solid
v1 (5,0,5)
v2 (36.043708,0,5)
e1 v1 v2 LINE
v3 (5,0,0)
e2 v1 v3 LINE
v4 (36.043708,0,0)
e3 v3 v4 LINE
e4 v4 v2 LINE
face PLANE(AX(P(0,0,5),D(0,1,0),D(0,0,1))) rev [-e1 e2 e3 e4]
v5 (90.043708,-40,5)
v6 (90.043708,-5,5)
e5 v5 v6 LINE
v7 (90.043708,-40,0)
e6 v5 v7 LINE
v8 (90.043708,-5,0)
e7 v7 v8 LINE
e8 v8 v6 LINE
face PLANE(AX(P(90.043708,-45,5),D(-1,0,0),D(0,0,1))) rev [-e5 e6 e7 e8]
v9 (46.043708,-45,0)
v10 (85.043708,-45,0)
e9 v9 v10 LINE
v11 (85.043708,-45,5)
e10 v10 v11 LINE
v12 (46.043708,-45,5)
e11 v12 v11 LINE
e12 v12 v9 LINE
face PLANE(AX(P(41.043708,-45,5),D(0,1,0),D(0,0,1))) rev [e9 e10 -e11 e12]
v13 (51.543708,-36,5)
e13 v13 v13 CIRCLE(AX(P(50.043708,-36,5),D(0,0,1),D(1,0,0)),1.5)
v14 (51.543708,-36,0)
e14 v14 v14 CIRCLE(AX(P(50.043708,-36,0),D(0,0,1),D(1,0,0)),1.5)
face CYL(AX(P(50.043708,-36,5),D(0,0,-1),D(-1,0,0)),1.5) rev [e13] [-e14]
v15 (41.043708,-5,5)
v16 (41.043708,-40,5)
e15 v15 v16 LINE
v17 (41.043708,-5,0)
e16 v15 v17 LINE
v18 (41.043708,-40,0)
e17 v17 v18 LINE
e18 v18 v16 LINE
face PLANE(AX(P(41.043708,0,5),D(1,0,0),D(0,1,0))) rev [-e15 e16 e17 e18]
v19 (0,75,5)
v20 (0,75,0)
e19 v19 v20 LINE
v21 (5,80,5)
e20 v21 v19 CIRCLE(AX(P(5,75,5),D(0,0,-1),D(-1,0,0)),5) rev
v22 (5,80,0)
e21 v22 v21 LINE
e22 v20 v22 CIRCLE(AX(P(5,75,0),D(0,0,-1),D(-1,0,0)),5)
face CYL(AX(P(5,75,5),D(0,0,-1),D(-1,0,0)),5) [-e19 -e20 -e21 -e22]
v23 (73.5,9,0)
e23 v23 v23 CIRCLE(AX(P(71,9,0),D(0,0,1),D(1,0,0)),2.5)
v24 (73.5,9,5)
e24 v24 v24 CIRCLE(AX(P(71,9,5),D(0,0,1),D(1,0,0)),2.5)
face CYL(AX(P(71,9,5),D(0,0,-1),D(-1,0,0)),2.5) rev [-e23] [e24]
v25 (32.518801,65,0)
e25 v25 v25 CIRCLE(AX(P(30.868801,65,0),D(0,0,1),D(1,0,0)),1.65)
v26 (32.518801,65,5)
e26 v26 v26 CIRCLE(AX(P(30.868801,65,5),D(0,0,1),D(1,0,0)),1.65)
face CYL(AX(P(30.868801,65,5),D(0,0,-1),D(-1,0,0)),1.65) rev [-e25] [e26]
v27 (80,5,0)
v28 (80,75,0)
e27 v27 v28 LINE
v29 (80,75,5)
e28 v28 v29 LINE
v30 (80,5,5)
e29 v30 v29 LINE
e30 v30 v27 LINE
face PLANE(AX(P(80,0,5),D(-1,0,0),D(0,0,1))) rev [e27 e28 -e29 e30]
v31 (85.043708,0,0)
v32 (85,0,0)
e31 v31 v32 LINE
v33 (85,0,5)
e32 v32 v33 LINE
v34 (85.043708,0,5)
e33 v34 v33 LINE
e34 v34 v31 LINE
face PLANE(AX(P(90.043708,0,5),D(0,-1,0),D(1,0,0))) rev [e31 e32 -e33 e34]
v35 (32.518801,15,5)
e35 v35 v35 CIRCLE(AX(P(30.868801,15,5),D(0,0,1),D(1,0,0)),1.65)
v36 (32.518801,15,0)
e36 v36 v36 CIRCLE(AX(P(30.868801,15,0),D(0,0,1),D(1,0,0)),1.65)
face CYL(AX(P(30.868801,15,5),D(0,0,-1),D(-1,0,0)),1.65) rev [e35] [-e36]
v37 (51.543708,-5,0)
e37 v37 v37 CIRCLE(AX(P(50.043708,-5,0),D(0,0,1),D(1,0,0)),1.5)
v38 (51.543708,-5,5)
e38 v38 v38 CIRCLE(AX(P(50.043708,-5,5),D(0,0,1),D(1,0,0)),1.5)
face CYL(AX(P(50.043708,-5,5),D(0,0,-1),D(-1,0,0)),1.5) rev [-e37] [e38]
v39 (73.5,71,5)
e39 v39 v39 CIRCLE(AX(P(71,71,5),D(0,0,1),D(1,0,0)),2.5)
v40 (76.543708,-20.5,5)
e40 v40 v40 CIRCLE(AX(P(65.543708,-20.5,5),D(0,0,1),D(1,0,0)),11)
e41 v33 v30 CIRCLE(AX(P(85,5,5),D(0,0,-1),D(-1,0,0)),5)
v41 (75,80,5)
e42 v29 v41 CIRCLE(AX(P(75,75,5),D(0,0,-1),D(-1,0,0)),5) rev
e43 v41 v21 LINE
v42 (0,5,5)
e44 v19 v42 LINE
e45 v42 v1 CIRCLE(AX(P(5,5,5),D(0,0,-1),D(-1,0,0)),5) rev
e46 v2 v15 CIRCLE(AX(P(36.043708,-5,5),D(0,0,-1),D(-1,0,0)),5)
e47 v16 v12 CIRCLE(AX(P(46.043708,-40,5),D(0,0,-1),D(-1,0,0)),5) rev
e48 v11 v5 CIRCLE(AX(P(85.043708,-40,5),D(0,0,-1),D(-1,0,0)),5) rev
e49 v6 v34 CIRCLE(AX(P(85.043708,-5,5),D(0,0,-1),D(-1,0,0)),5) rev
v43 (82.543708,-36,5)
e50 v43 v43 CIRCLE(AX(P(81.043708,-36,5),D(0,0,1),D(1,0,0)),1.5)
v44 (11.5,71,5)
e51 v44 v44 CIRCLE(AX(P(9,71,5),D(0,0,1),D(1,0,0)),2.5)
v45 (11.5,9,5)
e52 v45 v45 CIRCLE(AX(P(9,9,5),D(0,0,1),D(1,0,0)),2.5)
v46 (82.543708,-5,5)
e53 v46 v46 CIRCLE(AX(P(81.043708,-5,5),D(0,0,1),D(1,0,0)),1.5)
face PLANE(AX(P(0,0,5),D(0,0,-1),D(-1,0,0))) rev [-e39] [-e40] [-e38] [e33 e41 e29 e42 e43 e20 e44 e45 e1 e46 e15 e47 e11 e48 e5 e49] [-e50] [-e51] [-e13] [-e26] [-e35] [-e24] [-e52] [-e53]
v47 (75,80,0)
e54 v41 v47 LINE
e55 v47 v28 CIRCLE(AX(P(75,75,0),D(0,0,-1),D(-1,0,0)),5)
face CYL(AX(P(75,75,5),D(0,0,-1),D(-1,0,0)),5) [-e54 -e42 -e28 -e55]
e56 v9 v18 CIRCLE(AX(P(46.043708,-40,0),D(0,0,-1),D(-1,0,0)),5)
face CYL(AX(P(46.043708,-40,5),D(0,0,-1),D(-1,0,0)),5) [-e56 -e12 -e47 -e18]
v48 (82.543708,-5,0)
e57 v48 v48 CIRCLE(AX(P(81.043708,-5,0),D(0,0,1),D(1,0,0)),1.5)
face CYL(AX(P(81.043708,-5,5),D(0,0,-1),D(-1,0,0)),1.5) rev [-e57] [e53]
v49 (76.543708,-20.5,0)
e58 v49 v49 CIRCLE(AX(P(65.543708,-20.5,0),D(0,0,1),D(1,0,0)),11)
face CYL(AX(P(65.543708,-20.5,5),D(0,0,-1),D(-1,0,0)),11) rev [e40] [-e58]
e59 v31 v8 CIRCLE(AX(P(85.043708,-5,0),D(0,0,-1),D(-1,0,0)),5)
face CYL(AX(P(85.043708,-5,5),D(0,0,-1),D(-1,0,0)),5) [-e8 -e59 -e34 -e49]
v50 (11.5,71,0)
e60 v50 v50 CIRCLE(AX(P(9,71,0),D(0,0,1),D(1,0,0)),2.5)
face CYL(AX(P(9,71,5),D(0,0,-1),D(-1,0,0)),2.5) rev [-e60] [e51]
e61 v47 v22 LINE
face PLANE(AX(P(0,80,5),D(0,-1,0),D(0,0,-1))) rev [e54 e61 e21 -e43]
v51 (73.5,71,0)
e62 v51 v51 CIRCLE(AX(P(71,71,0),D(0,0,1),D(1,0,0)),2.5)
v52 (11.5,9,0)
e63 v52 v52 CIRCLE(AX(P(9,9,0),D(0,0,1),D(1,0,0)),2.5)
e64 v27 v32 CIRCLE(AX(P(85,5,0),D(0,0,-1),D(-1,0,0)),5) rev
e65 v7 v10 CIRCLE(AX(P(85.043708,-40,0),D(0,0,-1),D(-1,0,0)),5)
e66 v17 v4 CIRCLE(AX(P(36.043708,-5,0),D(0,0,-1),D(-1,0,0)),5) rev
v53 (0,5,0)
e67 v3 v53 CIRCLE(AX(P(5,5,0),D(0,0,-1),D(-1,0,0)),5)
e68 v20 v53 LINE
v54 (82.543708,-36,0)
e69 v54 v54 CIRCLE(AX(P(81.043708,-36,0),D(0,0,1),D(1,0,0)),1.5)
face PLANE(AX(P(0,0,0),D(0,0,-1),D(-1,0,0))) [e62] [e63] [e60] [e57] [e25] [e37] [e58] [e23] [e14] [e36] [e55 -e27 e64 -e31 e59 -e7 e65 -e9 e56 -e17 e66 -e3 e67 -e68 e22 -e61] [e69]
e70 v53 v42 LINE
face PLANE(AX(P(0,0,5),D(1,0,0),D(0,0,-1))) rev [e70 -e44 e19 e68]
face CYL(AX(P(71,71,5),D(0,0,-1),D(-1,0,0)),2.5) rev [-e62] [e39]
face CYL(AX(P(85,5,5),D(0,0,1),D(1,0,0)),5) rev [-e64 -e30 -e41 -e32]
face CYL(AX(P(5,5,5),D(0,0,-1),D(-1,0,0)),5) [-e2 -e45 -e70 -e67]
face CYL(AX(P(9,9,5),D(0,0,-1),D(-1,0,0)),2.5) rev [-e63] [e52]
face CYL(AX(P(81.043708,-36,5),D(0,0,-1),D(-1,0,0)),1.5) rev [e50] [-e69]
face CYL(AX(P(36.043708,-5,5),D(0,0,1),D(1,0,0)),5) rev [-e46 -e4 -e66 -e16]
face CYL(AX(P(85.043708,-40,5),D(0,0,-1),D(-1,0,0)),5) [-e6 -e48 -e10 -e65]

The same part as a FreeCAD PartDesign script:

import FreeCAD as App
import Part
import Sketcher
from FreeCAD import Vector


def edges_at(feature, points):
    """Names of the edges that pass closest to the given points."""
    edges = feature.Shape.Edges
    near = lambda p: min(range(len(edges)), key=lambda i: edges[i].distToShape(Part.Vertex(*p))[0])
    return sorted({f"Edge{near(p) + 1}" for p in points})


def add_polygon(sketch, points):
    """Adds a closed chain of lines whose ends are joined by coincident constraints."""
    first, n = sketch.GeometryCount, len(points)
    for a, b in zip(points, points[1:] + points[:1]):
        sketch.addGeometry(Part.LineSegment(App.Vector(*a, 0), App.Vector(*b, 0)), False)
    for i in range(n):
        sketch.addConstraint(Sketcher.Constraint("Coincident", first + i, 2, first + (i + 1) % n, 1))

doc = App.newDocument("Part")
body = doc.addObject("PartDesign::Body", "Body")

# Sketch on XY plane
sketch1 = body.newObject("Sketcher::SketchObject", "Sketch")
sketch1.AttachmentSupport = (doc.getObject("XY_Plane"), [""])
sketch1.MapMode = "FlatFace"
add_polygon(sketch1, [(0, 80), (0, 0), (41, 0), (41, -45), (90, -45), (90, 0), (80, 0), (80, 80)])  # lines 0-7
sketch1.addGeometry(Part.Circle(Vector(81, -36, 0), Vector(0, 0, 1), 1.5), False)  # 8
sketch1.addGeometry(Part.Circle(Vector(65.5, -20.5, 0), Vector(0, 0, 1), 11), False)  # 9
sketch1.addGeometry(Part.Circle(Vector(50, -36, 0), Vector(0, 0, 1), 1.5), False)  # 10
sketch1.addGeometry(Part.Circle(Vector(81, -5, 0), Vector(0, 0, 1), 1.5), False)  # 11
sketch1.addGeometry(Part.Circle(Vector(71, 9, 0), Vector(0, 0, 1), 2.5), False)  # 12
sketch1.addGeometry(Part.Circle(Vector(50, -5, 0), Vector(0, 0, 1), 1.5), False)  # 13
sketch1.addGeometry(Part.Circle(Vector(30.9, 15, 0), Vector(0, 0, 1), 1.6), False)  # 14
sketch1.addGeometry(Part.Circle(Vector(9, 9, 0), Vector(0, 0, 1), 2.5), False)  # 15
sketch1.addGeometry(Part.Circle(Vector(71, 71, 0), Vector(0, 0, 1), 2.5), False)  # 16
sketch1.addGeometry(Part.Circle(Vector(30.9, 65, 0), Vector(0, 0, 1), 1.6), False)  # 17
sketch1.addGeometry(Part.Circle(Vector(9, 71, 0), Vector(0, 0, 1), 2.5), False)  # 18
sketch1.addConstraint([
    Sketcher.Constraint("Vertical", 0),
    Sketcher.Constraint("Horizontal", 1),
    Sketcher.Constraint("Vertical", 2),
    Sketcher.Constraint("Horizontal", 3),
    Sketcher.Constraint("Vertical", 4),
    Sketcher.Constraint("Horizontal", 5),
    Sketcher.Constraint("Vertical", 6),
    Sketcher.Constraint("Horizontal", 7),
    Sketcher.Constraint("Coincident", 0, 2, -1, 1),
    Sketcher.Constraint("Equal", 8, 10),
    Sketcher.Constraint("Equal", 10, 11),
    Sketcher.Constraint("Equal", 11, 13),
    Sketcher.Constraint("Equal", 12, 15),
    Sketcher.Constraint("Equal", 15, 16),
    Sketcher.Constraint("Equal", 14, 17),
    Sketcher.Constraint("Equal", 16, 18),
    Sketcher.Constraint("PointOnObject", 4, 2, -1),
    Sketcher.Constraint("Horizontal", 8, 3, 10, 3),
    Sketcher.Constraint("Horizontal", 11, 3, 13, 3),
    Sketcher.Constraint("Horizontal", 12, 3, 15, 3),
    Sketcher.Constraint("Horizontal", 16, 3, 18, 3),
    Sketcher.Constraint("Vertical", 8, 3, 11, 3),
    Sketcher.Constraint("Vertical", 10, 3, 13, 3),
    Sketcher.Constraint("Vertical", 12, 3, 16, 3),
    Sketcher.Constraint("Vertical", 14, 3, 17, 3),
    Sketcher.Constraint("Vertical", 15, 3, 18, 3),
    Sketcher.Constraint("Equal", 7, 0),
    Sketcher.Constraint("Diameter", 8, 3.0),
    Sketcher.Constraint("Diameter", 9, 22.0),
    Sketcher.Constraint("Diameter", 12, 5.0),
    Sketcher.Constraint("Diameter", 14, 3.3),
    Sketcher.Constraint("DistanceX", 3, 1, 3, 2, 49.0),
    Sketcher.Constraint("DistanceX", 7, 2, 7, 1, 80.0),
    Sketcher.Constraint("DistanceY", 2, 2, 2, 1, 45.0),
    Sketcher.Constraint("DistanceY", 8, 3, -1, 1, 36.0),
    Sketcher.Constraint("DistanceY", 11, 3, -1, 1, 5.0),
    Sketcher.Constraint("DistanceX", -1, 1, 12, 3, 71.0),
    Sketcher.Constraint("DistanceY", -1, 1, 12, 3, 9.0),
    Sketcher.Constraint("DistanceY", -1, 1, 14, 3, 15.0),
    Sketcher.Constraint("DistanceX", -1, 1, 15, 3, 9.0),
    Sketcher.Constraint("DistanceY", -1, 1, 16, 3, 71.0),
    Sketcher.Constraint("DistanceY", -1, 1, 17, 3, 65.0),
    Sketcher.Constraint("DistanceX", 10, 3, 8, 3, 31.0),
    Sketcher.Constraint("DistanceX", 1, 2, 13, 3, 9.0),
    Sketcher.Constraint("DistanceY", 9, 3, -1, 1, 20.5),
    Sketcher.Constraint("DistanceX", 9, 3, 8, 3, 15.5),
    Sketcher.Constraint("DistanceX", -1, 1, 14, 3, 30.868801),
    Sketcher.Constraint("DistanceX", 1, 1, 1, 2, 41.043708),
])
pad1 = body.newObject("PartDesign::Pad", "Pad")
pad1.Profile = sketch1
pad1.Length = 5
doc.recompute()

fillet = body.newObject("PartDesign::Fillet", "Fillet")
fillet.Base = (pad1, edges_at(pad1, [
    (0, 0, 2.5),
    (0, 80, 2.5),
    (80, 80, 2.5),
    (80, 0, 2.5),
    (90.044, 0, 2.5),
    (90.044, -45, 2.5),
    (41.044, -45, 2.5),
    (41.044, 0, 2.5),
]))
fillet.Radius = 5

doc.recompute()
